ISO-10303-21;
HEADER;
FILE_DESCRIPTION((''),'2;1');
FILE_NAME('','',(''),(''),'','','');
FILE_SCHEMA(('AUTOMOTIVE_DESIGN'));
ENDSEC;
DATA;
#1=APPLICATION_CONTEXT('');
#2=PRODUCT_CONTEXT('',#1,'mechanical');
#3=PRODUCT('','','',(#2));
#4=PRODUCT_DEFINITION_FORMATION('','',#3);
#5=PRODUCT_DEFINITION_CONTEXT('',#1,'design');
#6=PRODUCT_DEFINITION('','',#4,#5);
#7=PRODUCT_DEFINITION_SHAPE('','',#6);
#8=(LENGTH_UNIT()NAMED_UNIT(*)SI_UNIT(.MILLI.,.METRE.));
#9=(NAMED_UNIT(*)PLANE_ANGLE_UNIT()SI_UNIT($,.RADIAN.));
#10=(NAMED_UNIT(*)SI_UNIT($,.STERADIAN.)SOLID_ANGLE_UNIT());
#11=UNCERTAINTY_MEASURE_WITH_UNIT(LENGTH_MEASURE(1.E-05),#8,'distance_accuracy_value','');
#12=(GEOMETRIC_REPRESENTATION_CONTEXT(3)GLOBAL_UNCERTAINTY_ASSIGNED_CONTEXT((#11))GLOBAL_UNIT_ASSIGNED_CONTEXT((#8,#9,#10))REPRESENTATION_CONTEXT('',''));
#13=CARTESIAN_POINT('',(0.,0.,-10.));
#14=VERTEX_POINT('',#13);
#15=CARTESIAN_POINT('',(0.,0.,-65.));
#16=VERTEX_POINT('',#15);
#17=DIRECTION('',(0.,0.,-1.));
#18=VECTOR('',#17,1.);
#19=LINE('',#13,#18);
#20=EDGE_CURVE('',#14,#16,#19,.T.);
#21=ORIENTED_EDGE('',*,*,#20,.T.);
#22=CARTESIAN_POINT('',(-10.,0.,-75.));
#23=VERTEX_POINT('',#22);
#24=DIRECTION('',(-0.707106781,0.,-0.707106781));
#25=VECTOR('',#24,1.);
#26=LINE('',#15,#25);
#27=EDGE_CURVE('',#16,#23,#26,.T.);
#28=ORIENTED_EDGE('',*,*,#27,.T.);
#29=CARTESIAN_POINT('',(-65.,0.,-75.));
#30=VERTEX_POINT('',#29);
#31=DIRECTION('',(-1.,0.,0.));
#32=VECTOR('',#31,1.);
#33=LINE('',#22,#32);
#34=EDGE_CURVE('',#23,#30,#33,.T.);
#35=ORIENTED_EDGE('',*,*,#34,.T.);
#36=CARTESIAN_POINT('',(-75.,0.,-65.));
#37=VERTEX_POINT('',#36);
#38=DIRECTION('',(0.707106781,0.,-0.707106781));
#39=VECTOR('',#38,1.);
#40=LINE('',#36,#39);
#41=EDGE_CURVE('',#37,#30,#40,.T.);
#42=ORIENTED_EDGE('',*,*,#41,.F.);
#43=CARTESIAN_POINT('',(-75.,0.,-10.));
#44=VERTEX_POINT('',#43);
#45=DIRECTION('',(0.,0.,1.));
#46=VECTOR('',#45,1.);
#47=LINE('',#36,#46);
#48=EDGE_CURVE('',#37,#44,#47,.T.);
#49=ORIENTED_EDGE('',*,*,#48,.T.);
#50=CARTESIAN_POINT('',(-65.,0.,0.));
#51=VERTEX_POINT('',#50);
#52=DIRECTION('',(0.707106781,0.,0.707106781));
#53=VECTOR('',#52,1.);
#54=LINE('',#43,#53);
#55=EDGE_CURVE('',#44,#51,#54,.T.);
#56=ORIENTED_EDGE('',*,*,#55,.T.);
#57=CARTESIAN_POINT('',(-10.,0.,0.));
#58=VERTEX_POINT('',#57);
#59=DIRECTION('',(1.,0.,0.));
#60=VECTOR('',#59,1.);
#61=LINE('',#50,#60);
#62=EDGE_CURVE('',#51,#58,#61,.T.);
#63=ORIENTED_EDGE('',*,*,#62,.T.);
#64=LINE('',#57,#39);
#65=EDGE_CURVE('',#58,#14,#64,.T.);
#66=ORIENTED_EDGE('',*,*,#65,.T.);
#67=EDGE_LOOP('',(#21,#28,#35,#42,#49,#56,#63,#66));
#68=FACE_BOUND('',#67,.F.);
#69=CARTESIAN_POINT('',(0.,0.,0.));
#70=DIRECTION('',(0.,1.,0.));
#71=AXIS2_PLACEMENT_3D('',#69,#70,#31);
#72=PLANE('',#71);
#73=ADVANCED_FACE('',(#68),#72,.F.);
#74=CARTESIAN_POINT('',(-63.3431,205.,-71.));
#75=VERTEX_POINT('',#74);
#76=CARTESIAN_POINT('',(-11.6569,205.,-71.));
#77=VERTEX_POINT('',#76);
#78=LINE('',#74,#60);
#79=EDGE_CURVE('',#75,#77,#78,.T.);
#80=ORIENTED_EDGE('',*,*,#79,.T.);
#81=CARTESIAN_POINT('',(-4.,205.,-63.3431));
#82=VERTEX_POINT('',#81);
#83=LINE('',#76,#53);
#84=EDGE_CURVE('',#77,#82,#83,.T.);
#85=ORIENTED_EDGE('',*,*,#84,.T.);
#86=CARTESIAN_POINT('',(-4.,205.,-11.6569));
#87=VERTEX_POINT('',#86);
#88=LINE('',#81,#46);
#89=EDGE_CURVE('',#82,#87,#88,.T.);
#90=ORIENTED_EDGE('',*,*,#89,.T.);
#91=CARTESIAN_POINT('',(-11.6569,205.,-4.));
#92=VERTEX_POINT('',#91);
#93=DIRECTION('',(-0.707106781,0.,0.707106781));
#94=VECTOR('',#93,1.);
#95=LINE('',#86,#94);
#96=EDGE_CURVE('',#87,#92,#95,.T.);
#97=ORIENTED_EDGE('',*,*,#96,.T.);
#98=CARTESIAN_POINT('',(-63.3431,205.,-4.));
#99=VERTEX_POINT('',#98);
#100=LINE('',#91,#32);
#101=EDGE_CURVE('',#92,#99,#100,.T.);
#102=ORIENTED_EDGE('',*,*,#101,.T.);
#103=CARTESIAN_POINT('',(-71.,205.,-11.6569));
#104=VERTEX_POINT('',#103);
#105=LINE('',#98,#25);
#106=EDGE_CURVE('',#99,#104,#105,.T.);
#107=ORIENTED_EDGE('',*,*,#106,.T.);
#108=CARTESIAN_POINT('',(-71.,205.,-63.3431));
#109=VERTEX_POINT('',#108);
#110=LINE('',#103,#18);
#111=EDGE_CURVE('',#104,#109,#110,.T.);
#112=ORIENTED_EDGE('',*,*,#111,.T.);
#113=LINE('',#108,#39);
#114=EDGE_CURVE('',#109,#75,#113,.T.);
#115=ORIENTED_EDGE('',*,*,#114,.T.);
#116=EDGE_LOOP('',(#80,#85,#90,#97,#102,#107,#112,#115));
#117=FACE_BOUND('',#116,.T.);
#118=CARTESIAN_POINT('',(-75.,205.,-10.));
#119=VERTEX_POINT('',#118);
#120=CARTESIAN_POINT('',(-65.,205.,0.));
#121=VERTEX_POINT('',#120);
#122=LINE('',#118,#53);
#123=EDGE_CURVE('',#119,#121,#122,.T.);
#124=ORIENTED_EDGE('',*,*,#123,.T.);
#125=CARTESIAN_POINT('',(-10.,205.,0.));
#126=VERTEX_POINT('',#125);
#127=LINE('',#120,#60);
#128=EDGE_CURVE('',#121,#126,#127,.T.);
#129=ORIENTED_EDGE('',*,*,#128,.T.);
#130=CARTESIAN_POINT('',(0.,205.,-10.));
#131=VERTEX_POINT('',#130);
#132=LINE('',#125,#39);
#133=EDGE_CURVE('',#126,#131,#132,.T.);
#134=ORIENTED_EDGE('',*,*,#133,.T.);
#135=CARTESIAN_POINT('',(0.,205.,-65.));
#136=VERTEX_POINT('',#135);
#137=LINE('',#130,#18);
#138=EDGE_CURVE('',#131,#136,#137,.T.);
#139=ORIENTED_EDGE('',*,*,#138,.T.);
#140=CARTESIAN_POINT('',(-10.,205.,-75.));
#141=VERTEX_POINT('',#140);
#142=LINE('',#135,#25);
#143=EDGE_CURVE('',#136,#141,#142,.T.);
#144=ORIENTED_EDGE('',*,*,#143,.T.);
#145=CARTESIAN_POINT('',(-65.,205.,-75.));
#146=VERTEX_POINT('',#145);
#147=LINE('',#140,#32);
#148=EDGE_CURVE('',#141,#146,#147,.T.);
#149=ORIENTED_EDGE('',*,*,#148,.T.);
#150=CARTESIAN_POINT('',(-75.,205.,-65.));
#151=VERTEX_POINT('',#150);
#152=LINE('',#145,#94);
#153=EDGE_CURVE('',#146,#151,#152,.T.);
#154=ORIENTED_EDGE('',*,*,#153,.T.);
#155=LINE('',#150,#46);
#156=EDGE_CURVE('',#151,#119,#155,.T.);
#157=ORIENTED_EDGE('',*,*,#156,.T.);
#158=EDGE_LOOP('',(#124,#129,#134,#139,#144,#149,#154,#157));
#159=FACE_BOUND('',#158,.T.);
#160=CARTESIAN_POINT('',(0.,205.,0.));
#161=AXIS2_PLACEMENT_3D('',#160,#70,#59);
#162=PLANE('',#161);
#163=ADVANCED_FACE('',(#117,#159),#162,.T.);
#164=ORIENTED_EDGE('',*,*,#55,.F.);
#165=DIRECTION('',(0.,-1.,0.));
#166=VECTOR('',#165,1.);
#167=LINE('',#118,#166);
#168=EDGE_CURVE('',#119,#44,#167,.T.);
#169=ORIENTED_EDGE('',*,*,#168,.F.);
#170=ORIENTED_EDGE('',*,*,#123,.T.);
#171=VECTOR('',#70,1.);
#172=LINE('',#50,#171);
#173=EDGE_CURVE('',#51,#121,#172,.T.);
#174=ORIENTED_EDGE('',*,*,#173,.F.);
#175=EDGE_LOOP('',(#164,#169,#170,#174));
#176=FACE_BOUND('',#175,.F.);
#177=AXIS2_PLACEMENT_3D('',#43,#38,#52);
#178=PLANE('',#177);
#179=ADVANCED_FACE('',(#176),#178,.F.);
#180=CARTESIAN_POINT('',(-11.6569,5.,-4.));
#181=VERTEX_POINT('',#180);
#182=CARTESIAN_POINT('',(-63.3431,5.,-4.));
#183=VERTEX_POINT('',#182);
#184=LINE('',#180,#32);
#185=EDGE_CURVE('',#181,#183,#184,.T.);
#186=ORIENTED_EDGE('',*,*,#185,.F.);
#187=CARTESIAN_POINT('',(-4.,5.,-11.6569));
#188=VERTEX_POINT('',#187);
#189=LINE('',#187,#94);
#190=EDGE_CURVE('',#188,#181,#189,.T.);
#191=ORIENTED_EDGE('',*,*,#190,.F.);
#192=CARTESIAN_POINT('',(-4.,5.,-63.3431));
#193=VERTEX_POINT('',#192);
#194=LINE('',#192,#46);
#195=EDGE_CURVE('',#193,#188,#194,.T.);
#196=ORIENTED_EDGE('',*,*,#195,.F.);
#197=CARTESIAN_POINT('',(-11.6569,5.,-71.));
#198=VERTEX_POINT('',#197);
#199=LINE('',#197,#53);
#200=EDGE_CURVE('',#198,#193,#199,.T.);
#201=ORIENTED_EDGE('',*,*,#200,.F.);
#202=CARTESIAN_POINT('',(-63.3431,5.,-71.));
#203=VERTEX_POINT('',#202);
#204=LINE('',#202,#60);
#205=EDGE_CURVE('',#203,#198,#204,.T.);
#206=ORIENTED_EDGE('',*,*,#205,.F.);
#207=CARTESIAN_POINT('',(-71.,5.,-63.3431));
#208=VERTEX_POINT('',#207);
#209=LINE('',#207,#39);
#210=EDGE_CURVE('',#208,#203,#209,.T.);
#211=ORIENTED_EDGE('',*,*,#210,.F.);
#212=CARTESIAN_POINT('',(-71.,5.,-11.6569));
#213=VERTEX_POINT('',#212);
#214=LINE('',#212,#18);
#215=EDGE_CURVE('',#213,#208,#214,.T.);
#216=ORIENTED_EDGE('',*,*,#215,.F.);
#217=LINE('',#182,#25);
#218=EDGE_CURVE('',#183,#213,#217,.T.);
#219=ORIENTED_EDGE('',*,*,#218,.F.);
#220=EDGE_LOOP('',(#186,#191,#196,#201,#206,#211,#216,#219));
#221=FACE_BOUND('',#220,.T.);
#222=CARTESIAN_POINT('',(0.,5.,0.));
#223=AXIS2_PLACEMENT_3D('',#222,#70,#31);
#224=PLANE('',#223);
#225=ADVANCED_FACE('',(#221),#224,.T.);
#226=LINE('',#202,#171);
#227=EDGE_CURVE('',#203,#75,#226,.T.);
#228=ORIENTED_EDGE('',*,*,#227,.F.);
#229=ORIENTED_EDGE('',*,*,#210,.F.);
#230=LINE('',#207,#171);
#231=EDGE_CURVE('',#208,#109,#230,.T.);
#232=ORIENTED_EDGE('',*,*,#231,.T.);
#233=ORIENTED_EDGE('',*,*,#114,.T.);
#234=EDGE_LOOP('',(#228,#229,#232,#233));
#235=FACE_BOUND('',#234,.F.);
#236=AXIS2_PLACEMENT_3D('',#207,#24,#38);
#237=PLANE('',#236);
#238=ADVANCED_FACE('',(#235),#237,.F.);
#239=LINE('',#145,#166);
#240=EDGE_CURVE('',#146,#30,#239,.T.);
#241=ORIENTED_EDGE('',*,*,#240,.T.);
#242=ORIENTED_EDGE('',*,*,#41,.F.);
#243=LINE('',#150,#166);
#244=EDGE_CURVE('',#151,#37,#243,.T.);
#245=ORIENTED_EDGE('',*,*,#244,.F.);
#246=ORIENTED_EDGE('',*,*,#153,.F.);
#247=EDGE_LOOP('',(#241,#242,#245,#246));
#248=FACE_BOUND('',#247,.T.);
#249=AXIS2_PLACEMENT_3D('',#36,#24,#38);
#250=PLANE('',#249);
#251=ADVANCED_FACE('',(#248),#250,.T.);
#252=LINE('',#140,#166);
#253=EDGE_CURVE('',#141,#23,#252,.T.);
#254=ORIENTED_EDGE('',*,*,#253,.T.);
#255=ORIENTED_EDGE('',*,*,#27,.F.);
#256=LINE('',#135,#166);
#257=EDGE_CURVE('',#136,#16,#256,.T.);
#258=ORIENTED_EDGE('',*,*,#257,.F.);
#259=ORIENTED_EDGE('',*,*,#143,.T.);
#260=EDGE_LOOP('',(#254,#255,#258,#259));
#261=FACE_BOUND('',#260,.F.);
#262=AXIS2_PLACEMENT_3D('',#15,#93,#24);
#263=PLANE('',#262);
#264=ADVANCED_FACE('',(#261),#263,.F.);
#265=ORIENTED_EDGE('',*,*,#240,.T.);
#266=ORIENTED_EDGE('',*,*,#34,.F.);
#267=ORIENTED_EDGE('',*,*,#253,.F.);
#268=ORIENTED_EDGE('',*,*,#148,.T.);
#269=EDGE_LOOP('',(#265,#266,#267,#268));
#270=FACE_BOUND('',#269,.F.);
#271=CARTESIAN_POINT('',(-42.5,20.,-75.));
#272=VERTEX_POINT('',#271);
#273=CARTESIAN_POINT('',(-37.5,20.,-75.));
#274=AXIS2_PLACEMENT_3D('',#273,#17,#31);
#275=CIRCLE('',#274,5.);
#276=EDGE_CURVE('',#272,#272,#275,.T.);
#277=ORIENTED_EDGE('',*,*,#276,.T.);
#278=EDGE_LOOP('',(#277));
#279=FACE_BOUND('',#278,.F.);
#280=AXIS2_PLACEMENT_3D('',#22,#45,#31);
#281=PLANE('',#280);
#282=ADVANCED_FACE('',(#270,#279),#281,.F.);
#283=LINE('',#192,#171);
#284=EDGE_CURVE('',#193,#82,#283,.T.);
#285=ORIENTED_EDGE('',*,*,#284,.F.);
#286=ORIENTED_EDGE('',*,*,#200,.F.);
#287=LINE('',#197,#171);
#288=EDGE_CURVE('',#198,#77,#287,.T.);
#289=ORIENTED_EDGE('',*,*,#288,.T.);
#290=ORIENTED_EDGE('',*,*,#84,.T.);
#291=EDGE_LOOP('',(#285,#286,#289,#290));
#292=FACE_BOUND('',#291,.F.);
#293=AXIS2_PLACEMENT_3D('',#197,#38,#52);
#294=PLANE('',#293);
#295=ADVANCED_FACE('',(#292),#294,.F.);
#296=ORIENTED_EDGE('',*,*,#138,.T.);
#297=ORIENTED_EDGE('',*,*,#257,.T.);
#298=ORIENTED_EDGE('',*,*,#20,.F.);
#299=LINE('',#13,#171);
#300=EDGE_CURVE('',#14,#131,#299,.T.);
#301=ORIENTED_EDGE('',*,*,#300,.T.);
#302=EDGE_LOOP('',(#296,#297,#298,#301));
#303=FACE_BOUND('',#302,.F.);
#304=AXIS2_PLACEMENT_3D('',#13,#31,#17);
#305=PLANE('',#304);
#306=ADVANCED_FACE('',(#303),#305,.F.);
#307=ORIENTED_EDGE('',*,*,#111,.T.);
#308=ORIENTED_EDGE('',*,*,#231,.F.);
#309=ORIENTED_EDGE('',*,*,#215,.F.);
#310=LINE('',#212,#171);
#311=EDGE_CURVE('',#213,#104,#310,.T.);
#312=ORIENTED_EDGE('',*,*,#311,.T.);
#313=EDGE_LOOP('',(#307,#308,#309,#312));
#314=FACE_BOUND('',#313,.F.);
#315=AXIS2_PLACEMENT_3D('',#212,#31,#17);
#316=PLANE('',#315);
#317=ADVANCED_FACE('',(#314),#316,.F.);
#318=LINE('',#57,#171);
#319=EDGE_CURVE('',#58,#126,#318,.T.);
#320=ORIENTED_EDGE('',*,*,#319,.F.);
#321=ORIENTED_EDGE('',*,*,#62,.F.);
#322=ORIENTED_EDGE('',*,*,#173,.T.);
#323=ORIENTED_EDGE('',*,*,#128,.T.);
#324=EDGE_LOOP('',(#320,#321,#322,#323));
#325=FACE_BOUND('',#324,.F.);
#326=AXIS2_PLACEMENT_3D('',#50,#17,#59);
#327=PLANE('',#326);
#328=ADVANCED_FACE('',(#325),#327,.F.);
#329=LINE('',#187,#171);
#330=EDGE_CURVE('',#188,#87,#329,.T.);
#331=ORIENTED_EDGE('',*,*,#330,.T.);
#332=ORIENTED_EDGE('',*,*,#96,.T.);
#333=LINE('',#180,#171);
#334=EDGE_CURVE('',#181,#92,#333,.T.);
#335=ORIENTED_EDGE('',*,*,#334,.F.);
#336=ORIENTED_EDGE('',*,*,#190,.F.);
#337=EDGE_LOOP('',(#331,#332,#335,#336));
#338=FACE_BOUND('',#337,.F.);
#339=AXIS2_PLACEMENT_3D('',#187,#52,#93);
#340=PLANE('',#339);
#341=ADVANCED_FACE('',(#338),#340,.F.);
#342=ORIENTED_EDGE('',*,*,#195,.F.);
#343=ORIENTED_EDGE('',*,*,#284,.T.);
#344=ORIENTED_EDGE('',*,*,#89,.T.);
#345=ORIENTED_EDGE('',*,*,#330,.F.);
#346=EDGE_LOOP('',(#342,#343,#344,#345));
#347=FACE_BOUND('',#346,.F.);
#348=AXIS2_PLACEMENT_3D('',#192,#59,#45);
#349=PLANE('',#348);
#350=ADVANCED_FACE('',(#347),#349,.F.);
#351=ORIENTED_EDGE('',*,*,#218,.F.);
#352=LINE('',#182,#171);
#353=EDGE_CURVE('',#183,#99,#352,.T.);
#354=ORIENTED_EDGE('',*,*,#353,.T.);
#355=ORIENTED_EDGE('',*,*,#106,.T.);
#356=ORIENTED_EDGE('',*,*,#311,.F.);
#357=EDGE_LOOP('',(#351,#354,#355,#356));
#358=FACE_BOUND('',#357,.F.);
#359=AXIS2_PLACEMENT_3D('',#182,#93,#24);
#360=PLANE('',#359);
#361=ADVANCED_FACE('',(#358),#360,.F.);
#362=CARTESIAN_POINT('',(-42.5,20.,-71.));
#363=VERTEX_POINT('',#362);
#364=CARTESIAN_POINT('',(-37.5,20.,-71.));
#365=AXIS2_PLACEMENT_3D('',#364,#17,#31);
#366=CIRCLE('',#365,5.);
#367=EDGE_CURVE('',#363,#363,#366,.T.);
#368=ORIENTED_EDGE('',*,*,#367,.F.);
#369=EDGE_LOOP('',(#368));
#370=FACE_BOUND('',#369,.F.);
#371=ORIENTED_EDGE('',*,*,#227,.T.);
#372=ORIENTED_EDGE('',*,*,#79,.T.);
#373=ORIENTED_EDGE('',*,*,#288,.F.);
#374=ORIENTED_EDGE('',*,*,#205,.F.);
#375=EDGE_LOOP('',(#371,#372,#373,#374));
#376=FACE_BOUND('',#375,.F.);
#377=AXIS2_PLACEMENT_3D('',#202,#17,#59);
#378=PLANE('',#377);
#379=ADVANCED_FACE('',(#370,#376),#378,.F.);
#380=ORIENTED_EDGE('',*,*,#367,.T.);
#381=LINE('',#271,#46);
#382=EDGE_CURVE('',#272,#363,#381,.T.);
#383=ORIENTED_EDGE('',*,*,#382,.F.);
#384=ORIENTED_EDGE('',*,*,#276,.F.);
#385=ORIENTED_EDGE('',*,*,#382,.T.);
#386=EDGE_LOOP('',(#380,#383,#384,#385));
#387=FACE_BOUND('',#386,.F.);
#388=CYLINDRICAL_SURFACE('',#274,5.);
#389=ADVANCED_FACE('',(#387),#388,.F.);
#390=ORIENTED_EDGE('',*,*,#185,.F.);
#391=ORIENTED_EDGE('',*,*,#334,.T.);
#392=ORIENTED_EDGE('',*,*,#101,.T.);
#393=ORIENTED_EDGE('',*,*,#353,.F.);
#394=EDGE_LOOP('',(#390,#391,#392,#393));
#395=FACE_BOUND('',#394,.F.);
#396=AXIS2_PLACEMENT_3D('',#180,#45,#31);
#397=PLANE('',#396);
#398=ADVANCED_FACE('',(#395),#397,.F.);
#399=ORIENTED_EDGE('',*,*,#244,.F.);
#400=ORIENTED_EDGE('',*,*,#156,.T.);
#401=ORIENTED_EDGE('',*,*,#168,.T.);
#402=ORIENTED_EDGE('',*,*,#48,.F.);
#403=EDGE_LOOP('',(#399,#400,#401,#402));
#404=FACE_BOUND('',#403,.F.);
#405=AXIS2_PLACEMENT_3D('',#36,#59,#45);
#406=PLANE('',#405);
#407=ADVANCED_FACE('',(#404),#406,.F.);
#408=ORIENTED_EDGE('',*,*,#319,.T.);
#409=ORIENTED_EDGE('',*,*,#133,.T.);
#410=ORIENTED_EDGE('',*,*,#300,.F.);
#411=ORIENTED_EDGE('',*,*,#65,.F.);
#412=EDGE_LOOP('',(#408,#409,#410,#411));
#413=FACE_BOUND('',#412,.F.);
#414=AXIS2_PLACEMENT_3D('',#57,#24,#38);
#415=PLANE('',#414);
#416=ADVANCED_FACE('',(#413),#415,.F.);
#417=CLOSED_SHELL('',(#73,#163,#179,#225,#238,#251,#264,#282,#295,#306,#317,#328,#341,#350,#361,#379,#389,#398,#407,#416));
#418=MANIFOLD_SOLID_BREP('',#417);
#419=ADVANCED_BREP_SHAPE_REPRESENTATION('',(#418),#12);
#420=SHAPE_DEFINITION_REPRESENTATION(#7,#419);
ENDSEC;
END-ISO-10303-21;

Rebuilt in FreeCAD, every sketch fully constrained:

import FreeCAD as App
import Part
import Sketcher


def add_polygon(sketch, points):
    """Adds a closed chain of lines whose ends are joined by coincident constraints."""
    first, n = sketch.GeometryCount, len(points)
    for a, b in zip(points, points[1:] + points[:1]):
        sketch.addGeometry(Part.LineSegment(App.Vector(*a, 0), App.Vector(*b, 0)), False)
    for i in range(n):
        sketch.addConstraint(Sketcher.Constraint("Coincident", first + i, 2, first + (i + 1) % n, 1))

doc = App.newDocument("Part")
params = doc.addObject("Spreadsheet::Sheet", "Params")
for row, (alias, value) in enumerate([
    ("pad1_length", "5 mm"),
    ("sketch2_width", "55 mm"),
    ("pad2_length", "200 mm"),
    ("sketch3_diameter", "10 mm"),
    ("pocket1_length", "4 mm"),
], start=1):
    params.set(f"A{row}", alias)
    params.set(f"B{row}", "=" + value)
    params.setAlias(f"B{row}", alias)

body = doc.addObject("PartDesign::Body", "Body")

sketch1 = body.newObject("Sketcher::SketchObject", "Sketch")
sketch1.AttachmentSupport = (doc.getObject("XZ_Plane"), [""])
sketch1.MapMode = "FlatFace"
add_polygon(sketch1, [(-75, -10), (-65, 0), (-10, 0), (0, -10), (0, -65), (-10, -75), (-65, -75), (-75, -65)])
sketch1.addConstraint([
    Sketcher.Constraint("Horizontal", 1),
    Sketcher.Constraint("Vertical", 3),
    Sketcher.Constraint("Horizontal", 5),
    Sketcher.Constraint("Vertical", 7),
    Sketcher.Constraint("PointOnObject", 0, 2, -1),
    Sketcher.Constraint("PointOnObject", 2, 2, -2),
    Sketcher.Constraint("Perpendicular", 0, 2),
    Sketcher.Constraint("Perpendicular", 2, 4),
    Sketcher.Constraint("Perpendicular", 4, 6),
    Sketcher.Constraint("Horizontal", 3, 2, 6, 2),
    Sketcher.Constraint("Horizontal", 2, 2, 7, 2),
    Sketcher.Constraint("Vertical", 1, 2, 4, 2),
    Sketcher.Constraint("Vertical", 0, 2, 5, 2),
    Sketcher.Constraint("Equal", 5, 3),
    Sketcher.Constraint("DistanceX", 1, 2, -1, 1, 10.0),
    Sketcher.Constraint("DistanceY", 4, 2, -1, 1, 75.0),
])
pad1 = body.newObject("PartDesign::Pad", "Pad")
pad1.Profile = sketch1
pad1.setExpression("Length", "Params.pad1_length")
pad1.Reversed = True

sketch2 = body.newObject("Sketcher::SketchObject", "Sketch001")
sketch2.AttachmentSupport = (doc.getObject("XZ_Plane"), [""])
sketch2.MapMode = "FlatFace"
sketch2.AttachmentOffset = App.Placement(App.Vector(0, 0, -5), App.Rotation())
add_polygon(sketch2, [(-75, -65), (-75, -10), (-65, 0), (-10, 0), (0, -10), (0, -65), (-10, -75), (-65, -75)])
add_polygon(sketch2, [(-63, -71), (-12, -71), (-4, -63), (-4, -12), (-12, -4), (-63, -4), (-71, -12), (-71, -63)])
sketch2.addConstraint([
    Sketcher.Constraint("Vertical", 0),
    Sketcher.Constraint("Horizontal", 2),
    Sketcher.Constraint("Vertical", 4),
    Sketcher.Constraint("Horizontal", 6),
    Sketcher.Constraint("Horizontal", 8),
    Sketcher.Constraint("Vertical", 10),
    Sketcher.Constraint("Horizontal", 12),
    Sketcher.Constraint("Vertical", 14),
    Sketcher.Constraint("PointOnObject", 1, 2, -1),
    Sketcher.Constraint("PointOnObject", 3, 2, -2),
    Sketcher.Constraint("Perpendicular", 1, 3),
    Sketcher.Constraint("Perpendicular", 3, 5),
    Sketcher.Constraint("Perpendicular", 5, 7),
    Sketcher.Constraint("Perpendicular", 7, 9),
    Sketcher.Constraint("Perpendicular", 9, 11),
    Sketcher.Constraint("Perpendicular", 11, 13),
    Sketcher.Constraint("Perpendicular", 13, 15),
    Sketcher.Constraint("Horizontal", 0, 2, 3, 2),
    Sketcher.Constraint("Horizontal", 4, 2, 7, 2),
    Sketcher.Constraint("Horizontal", 10, 2, 13, 2),
    Sketcher.Constraint("Horizontal", 9, 2, 14, 2),
    Sketcher.Constraint("Vertical", 2, 2, 5, 2),
    Sketcher.Constraint("Vertical", 1, 2, 6, 2),
    Sketcher.Constraint("Vertical", 8, 2, 11, 2),
    Sketcher.Constraint("Equal", 6, 0),
    Sketcher.Constraint("Equal", 12, 10),
    Sketcher.Constraint("DistanceX", 9, 2, -1, 1, 4.0),
    Sketcher.Constraint("DistanceY", 11, 2, -1, 1, 4.0),
    Sketcher.Constraint("DistanceY", 5, 2, 8, 2, 4.0),
    Sketcher.Constraint("DistanceX", 2, 1, 2, 2, 55.0),
    Sketcher.Constraint("DistanceX", 0, 2, -1, 1, 75.0),
    Sketcher.Constraint("DistanceX", 8, 1, 8, 2, 51.6862),
])
sketch2.setExpression("Constraints[45]", "Params.sketch2_width")
pad2 = body.newObject("PartDesign::Pad", "Pad001")
pad2.Profile = sketch2
pad2.setExpression("Length", "Params.pad2_length")
pad2.Reversed = True

sketch3 = body.newObject("Sketcher::SketchObject", "Sketch002")
sketch3.AttachmentSupport = (doc.getObject("XY_Plane"), [""])
sketch3.MapMode = "FlatFace"
sketch3.AttachmentOffset = App.Placement(App.Vector(0, 0, -75), App.Rotation())
sketch3.addGeometry(Part.Circle(App.Vector(-38, 20, 0), App.Vector(0, 0, 1), 5), False)
sketch3.addConstraint([
    Sketcher.Constraint("Diameter", 0, 10.0),
    Sketcher.Constraint("DistanceY", -1, 1, 0, 3, 20.0),
    Sketcher.Constraint("DistanceX", 0, 3, -1, 1, 37.5),
])
sketch3.setExpression("Constraints[0]", "Params.sketch3_diameter")
pocket1 = body.newObject("PartDesign::Pocket", "Pocket")
pocket1.Profile = sketch3
pocket1.setExpression("Length", "Params.pocket1_length")
pocket1.Reversed = True

doc.recompute()
